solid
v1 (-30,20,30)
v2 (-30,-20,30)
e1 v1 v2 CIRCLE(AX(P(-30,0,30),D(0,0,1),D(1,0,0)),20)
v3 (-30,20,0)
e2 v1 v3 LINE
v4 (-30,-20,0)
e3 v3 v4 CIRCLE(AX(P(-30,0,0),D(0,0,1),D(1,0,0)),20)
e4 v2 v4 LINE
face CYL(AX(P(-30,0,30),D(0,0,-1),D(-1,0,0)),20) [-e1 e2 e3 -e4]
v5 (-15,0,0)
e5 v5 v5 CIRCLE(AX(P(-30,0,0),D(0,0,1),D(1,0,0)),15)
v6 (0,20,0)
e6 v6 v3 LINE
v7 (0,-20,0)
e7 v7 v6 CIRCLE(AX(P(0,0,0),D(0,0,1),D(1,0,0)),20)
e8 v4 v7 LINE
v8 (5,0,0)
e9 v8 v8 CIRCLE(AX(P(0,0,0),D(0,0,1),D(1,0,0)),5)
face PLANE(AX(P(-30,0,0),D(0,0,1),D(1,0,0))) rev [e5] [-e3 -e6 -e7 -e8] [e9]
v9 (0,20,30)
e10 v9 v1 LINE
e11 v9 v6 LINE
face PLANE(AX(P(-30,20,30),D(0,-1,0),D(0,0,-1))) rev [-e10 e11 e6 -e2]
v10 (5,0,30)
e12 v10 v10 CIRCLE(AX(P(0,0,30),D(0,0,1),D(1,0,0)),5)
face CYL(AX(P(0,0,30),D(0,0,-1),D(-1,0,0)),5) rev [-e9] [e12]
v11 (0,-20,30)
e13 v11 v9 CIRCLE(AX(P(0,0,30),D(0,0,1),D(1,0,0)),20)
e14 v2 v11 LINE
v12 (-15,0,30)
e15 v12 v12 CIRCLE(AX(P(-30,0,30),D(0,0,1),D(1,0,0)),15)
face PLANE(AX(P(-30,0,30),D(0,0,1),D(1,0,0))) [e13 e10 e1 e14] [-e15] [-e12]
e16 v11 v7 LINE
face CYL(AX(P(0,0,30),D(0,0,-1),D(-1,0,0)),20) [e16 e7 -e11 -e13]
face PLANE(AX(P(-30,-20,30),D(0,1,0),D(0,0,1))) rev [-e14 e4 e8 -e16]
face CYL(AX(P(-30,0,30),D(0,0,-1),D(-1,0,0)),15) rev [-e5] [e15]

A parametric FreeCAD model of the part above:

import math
import FreeCAD as App
import Part
import Sketcher
from FreeCAD import Vector
Q = App.Units.Quantity

doc = App.newDocument("Part")
body = doc.addObject("PartDesign::Body", "Body")

# Sketch on XY plane
sketch1 = body.newObject("Sketcher::SketchObject", "Sketch")
sketch1.AttachmentSupport = (doc.getObject("XY_Plane"), [""])
sketch1.MapMode = "FlatFace"
sketch1.addGeometry([
    Part.LineSegment(Vector(0, 20, 0), Vector(-30, 20, 0)),
    Part.ArcOfCircle(Part.Circle(Vector(-30, 0, 0), Vector(0, 0, 1), 20), math.radians(90), math.radians(270)),
    Part.LineSegment(Vector(-30, -20, 0), Vector(0, -20, 0)),
    Part.ArcOfCircle(Part.Circle(Vector(0, 0, 0), Vector(0, 0, 1), 20), math.radians(-90), math.radians(90)),
], False)
sketch1.addConstraint([
    Sketcher.Constraint("Tangent", 0, 2, 1, 1),
    Sketcher.Constraint("Tangent", 1, 2, 2, 1),
    Sketcher.Constraint("Tangent", 2, 2, 3, 1),
    Sketcher.Constraint("Tangent", 3, 2, 0, 1),
    Sketcher.Constraint("Horizontal", 0),
    Sketcher.Constraint("Horizontal", 2),
    Sketcher.Constraint("Coincident", 3, 3, -1, 1),
    Sketcher.Constraint("Radius", 1, Q("20 mm")),
    Sketcher.Constraint("DistanceX", 0, 2, 0, 1, Q("30 mm")),
])
pad1 = body.newObject("PartDesign::Pad", "Pad")
pad1.Profile = sketch1
pad1.Length = 30

# Sketch on XY plane
sketch2 = body.newObject("Sketcher::SketchObject", "Sketch001")
sketch2.AttachmentSupport = (doc.getObject("XY_Plane"), [""])
sketch2.MapMode = "FlatFace"
sketch2.addGeometry([
    Part.Circle(Vector(-30, 0, 0), Vector(0, 0, 1), 15),
    Part.Circle(Vector(0, 0, 0), Vector(0, 0, 1), 5),
], False)
sketch2.addConstraint([
    Sketcher.Constraint("Coincident", 1, 3, -1, 1),
    Sketcher.Constraint("PointOnObject", 0, 3, -1),
    Sketcher.Constraint("Diameter", 0, Q("30 mm")),
    Sketcher.Constraint("Diameter", 1, Q("10 mm")),
    Sketcher.Constraint("DistanceX", 0, 3, -1, 1, Q("30 mm")),
])
pocket1 = body.newObject("PartDesign::Pocket", "Pocket")
pocket1.Profile = sketch2
pocket1.Type = "ThroughAll"
pocket1.Reversed = True

doc.recompute()
